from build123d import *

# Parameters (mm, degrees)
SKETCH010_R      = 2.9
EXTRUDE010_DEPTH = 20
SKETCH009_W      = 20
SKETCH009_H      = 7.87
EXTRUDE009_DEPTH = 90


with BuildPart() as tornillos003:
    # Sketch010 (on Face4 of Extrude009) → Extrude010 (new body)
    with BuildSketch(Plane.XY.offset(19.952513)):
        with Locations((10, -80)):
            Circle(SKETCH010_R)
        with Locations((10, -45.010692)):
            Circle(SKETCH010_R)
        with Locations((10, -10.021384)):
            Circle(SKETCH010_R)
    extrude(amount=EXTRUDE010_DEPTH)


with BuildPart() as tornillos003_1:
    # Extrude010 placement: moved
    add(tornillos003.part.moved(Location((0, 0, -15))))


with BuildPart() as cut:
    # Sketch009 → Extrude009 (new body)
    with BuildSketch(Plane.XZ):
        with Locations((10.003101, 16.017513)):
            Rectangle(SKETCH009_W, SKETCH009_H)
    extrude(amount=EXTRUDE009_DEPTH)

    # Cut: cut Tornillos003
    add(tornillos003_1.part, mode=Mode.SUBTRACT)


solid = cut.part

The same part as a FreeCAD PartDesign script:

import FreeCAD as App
import Part
import Sketcher

V = App.Vector


def add_polygon(sketch, points):
    """Adds a closed chain of lines whose ends are joined by coincident constraints."""
    first, n = sketch.GeometryCount, len(points)
    for a, b in zip(points, points[1:] + points[:1]):
        sketch.addGeometry(Part.LineSegment(App.Vector(*a, 0), App.Vector(*b, 0)), False)
    for i in range(n):
        sketch.addConstraint(Sketcher.Constraint("Coincident", first + i, 2, first + (i + 1) % n, 1))

doc = App.newDocument("Part")
body = doc.addObject("PartDesign::Body", "Body")
body.AllowCompound = True

# Sketch on XY plane
sketch1 = body.newObject("Sketcher::SketchObject", "Sketch")
sketch1.AttachmentSupport = (doc.getObject("XY_Plane"), [""])
sketch1.MapMode = "FlatFace"
sketch1.AttachmentOffset = App.Placement(V(0, 0, 19.952513), App.Rotation())
sketch1.addGeometry(Part.Circle(V(10, -80, 0), V(0, 0, 1), 2.9), False)
sketch1.addGeometry(Part.Circle(V(10, -45, 0), V(0, 0, 1), 2.9), False)
sketch1.addGeometry(Part.Circle(V(10, -10, 0), V(0, 0, 1), 2.9), False)
sketch1.addConstraint(Sketcher.Constraint("Equal", 0, 1))
sketch1.addConstraint(Sketcher.Constraint("Equal", 1, 2))
sketch1.addConstraint(Sketcher.Constraint("Vertical", 0, 3, 1, 3))
sketch1.addConstraint(Sketcher.Constraint("Vertical", 1, 3, 2, 3))
sketch1.addConstraint(Sketcher.Constraint("Diameter", 0, 5.8))
sketch1.addConstraint(Sketcher.Constraint("DistanceX", -1, 1, 0, 3, 10.0))
sketch1.addConstraint(Sketcher.Constraint("DistanceY", 0, 3, -1, 1, 80.0))
sketch1.addConstraint(Sketcher.Constraint("DistanceY", 1, 3, -1, 1, 45.010692))
sketch1.addConstraint(Sketcher.Constraint("DistanceY", 2, 3, -1, 1, 10.021384))
pad1 = body.newObject("PartDesign::Pad", "Pad")
pad1.Profile = sketch1
pad1.Length = 20
body2 = doc.addObject("PartDesign::Body", "Body001")
body2.AllowCompound = True
doc.recompute()

body.Placement = App.Placement(V(0, 0, -15), App.Rotation(V(0, 0, 1), 0))
boolean = body2.newObject("PartDesign::Boolean", "Boolean")
boolean.Type = "Fuse"
boolean.addObjects([body])
body3 = doc.addObject("PartDesign::Body", "Body002")

# Sketch on XZ plane
sketch2 = body3.newObject("Sketcher::SketchObject", "Sketch001")
sketch2.AttachmentSupport = (doc.getObject("XZ_Plane002"), [""])
sketch2.MapMode = "FlatFace"
add_polygon(sketch2, [(0, 20), (0, 12), (20, 12), (20, 20)])  # lines 0-3
sketch2.addConstraint(Sketcher.Constraint("Vertical", 0))
sketch2.addConstraint(Sketcher.Constraint("Horizontal", 1))
sketch2.addConstraint(Sketcher.Constraint("Vertical", 2))
sketch2.addConstraint(Sketcher.Constraint("Horizontal", 3))
sketch2.addConstraint(Sketcher.Constraint("DistanceX", 1, 1, 1, 2, 20.0))
sketch2.addConstraint(Sketcher.Constraint("DistanceY", 0, 2, 0, 1, 7.87))
sketch2.addConstraint(Sketcher.Constraint("DistanceX", -1, 1, 0, 2, 0.003101))
sketch2.addConstraint(Sketcher.Constraint("DistanceY", -1, 1, 0, 2, 12.082513))
pad2 = body3.newObject("PartDesign::Pad", "Pad001")
pad2.Profile = sketch2
pad2.Length = 90
doc.recompute()

boolean2 = body3.newObject("PartDesign::Boolean", "Boolean001")
boolean2.Type = "Cut"
boolean2.addObjects([body2])

doc.recompute()
